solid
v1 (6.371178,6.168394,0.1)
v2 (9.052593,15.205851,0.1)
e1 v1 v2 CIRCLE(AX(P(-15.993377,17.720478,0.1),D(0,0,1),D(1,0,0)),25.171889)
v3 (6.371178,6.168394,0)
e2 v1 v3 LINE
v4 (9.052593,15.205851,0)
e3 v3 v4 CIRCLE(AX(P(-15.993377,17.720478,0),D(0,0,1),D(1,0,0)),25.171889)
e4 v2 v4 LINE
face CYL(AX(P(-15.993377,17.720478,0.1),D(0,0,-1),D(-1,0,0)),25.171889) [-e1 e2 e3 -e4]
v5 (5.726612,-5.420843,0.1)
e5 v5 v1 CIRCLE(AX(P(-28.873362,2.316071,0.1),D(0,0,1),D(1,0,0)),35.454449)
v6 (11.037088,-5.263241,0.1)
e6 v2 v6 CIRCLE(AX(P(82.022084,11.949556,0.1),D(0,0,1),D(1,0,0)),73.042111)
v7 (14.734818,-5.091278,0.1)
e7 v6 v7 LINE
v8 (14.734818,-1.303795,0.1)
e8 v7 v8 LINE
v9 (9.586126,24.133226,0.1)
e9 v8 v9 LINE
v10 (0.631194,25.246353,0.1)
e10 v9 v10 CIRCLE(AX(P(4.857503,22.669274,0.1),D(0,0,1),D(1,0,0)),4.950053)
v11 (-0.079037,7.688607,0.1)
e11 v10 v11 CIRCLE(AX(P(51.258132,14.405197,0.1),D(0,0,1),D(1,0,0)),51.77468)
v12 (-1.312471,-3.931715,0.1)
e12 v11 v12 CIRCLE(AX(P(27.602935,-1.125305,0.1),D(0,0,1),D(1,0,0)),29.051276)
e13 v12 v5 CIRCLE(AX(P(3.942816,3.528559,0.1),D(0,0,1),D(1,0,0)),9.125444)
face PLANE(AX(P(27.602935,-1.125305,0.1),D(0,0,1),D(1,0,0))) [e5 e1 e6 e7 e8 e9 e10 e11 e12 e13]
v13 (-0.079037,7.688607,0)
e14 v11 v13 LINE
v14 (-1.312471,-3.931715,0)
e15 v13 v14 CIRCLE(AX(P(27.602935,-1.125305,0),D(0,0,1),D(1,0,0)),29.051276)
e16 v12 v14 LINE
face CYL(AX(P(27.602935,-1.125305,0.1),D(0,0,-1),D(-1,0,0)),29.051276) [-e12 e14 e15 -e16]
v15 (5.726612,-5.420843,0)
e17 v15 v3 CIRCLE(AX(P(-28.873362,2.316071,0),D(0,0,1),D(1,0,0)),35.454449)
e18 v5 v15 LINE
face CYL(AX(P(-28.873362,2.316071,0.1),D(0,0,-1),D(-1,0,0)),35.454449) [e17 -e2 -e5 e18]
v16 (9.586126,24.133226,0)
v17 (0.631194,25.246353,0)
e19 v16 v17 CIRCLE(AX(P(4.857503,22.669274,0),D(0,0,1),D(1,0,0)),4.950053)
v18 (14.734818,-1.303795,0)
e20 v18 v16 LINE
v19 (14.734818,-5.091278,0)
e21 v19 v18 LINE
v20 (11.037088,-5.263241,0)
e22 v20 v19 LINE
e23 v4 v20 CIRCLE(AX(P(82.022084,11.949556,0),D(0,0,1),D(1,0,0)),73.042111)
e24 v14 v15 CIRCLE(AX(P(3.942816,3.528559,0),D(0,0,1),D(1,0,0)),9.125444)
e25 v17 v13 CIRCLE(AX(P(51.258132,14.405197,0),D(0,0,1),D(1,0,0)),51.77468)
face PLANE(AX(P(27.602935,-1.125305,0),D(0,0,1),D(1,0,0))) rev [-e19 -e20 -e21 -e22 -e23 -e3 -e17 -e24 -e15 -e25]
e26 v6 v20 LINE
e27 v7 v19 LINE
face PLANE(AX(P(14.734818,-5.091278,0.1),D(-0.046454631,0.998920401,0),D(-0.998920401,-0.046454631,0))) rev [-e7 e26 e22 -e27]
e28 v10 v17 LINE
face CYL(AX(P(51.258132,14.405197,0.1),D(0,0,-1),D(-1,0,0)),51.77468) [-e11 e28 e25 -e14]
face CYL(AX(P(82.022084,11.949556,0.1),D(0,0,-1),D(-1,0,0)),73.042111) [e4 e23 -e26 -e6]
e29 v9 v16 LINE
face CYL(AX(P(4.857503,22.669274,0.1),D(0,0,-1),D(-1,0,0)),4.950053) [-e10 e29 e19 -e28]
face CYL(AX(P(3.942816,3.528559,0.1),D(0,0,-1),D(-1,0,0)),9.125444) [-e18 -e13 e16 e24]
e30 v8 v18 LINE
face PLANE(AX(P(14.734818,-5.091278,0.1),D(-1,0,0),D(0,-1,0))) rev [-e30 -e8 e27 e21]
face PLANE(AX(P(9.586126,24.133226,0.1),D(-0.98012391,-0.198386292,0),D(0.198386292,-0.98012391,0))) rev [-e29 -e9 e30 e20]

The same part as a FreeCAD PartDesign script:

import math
import FreeCAD as App
import Part
import Sketcher

V = App.Vector

doc = App.newDocument("Part")
body = doc.addObject("PartDesign::Body", "Body")

# Sketch on XY plane
sketch1 = body.newObject("Sketcher::SketchObject", "Sketch")
sketch1.AttachmentSupport = (doc.getObject("XY_Plane"), [""])
sketch1.MapMode = "FlatFace"
sketch1.addGeometry([
    Part.LineSegment(V(14.734818, -5.091278, 0), V(14.734818, -1.303795, 0)),  # 0
    Part.LineSegment(V(14.734818, -1.303795, 0), V(9.586126, 24.133226, 0)),  # 1
    Part.ArcOfCircle(Part.Circle(V(4.857503, 22.669274, 0), V(0, 0, 1), 4.950053), math.radians(17.202189), math.radians(148.62639)),  # 2
    Part.ArcOfCircle(Part.Circle(V(51.258132, 14.405197, 0), V(0, 0, 1), 51.77468), math.radians(167.913329), math.radians(187.453835)),  # 3
    Part.ArcOfCircle(Part.Circle(V(27.602935, -1.125305, 0), V(0, 0, 1), 29.051276), math.radians(162.338577), math.radians(185.543528)),  # 4
    Part.ArcOfCircle(Part.Circle(V(3.942816, 3.528559, 0), V(0, 0, 1), 9.125444), math.radians(-125.162256), math.radians(-78.727533)),  # 5
    Part.ArcOfCircle(Part.Circle(V(-28.873362, 2.316071, 0), V(0, 0, 1), 35.454449), math.radians(-12.60458), math.radians(6.237821)),  # 6
    Part.ArcOfCircle(Part.Circle(V(-15.993377, 17.720478, 0), V(0, 0, 1), 25.171889), math.radians(-27.317952), math.radians(-5.733309)),  # 7
    Part.ArcOfCircle(Part.Circle(V(82.022084, 11.949556, 0), V(0, 0, 1), 73.042111), math.radians(177.444846), math.radians(193.630282)),  # 8
    Part.LineSegment(V(11.037088, -5.263241, 0), V(14.734818, -5.091278, 0)),  # 9
], False)
sketch1.addConstraint([
    Sketcher.Constraint("Coincident", 0, 2, 1, 1),
    Sketcher.Constraint("Coincident", 1, 2, 2, 1),
    Sketcher.Constraint("Coincident", 2, 2, 3, 1),
    Sketcher.Constraint("Coincident", 3, 2, 4, 1),
    Sketcher.Constraint("Coincident", 4, 2, 5, 1),
    Sketcher.Constraint("Coincident", 5, 2, 6, 1),
    Sketcher.Constraint("Coincident", 6, 2, 7, 1),
    Sketcher.Constraint("Coincident", 7, 2, 8, 1),
    Sketcher.Constraint("Coincident", 8, 2, 9, 1),
    Sketcher.Constraint("Coincident", 9, 2, 0, 1),
    Sketcher.Constraint("Vertical", 0),
    Sketcher.Constraint("Radius", 3, 51.77468),
    Sketcher.Constraint("Radius", 6, 35.454449),
    Sketcher.Constraint("Radius", 7, 25.171889),
    Sketcher.Constraint("Radius", 8, 73.042111),
    Sketcher.Constraint("Radius", 2, 4.950053),
    Sketcher.Constraint("Radius", 4, 29.051276),
    Sketcher.Constraint("Radius", 5, 9.125444),
    Sketcher.Constraint("DistanceX", 5, 3, 0, 2, 10.792002),
    Sketcher.Constraint("DistanceY", 8, 2, 5, 3, 8.7918),
    Sketcher.Constraint("DistanceY", 0, 1, 0, 2, 3.787483),
    Sketcher.Constraint("DistanceX", -1, 1, 3, 3, 51.258132),
    Sketcher.Constraint("DistanceY", -1, 1, 5, 3, 3.528559),
    Sketcher.Constraint("DistanceX", 6, 3, -1, 1, 28.873362),
    Sketcher.Constraint("DistanceY", -1, 1, 6, 3, 2.316071),
    Sketcher.Constraint("DistanceX", -1, 1, 0, 2, 14.734818),
    Sketcher.Constraint("DistanceX", 4, 2, -1, 1, 1.312471),
    Sketcher.Constraint("DistanceX", -1, 1, 6, 2, 6.371178),
    Sketcher.Constraint("DistanceY", -1, 1, 7, 2, 15.205851),
    Sketcher.Constraint("DistanceY", 9, 2, -1, 1, 5.091278),
    Sketcher.Constraint("DistanceX", 2, 3, 3, 3, 46.400629),
    Sketcher.Constraint("DistanceX", 2, 3, 4, 3, 22.745432),
    Sketcher.Constraint("DistanceY", 4, 3, 2, 3, 23.79458),
    Sketcher.Constraint("DistanceY", 5, 3, 3, 3, 10.876638),
    Sketcher.Constraint("DistanceX", 7, 3, 2, 3, 20.85088),
    Sketcher.Constraint("DistanceX", 3, 3, 8, 3, 30.763952),
    Sketcher.Constraint("DistanceY", 2, 3, 1, 2, 1.463951),
])
pad1 = body.newObject("PartDesign::Pad", "Pad")
pad1.Profile = sketch1
pad1.Length = 0.1

doc.recompute()
